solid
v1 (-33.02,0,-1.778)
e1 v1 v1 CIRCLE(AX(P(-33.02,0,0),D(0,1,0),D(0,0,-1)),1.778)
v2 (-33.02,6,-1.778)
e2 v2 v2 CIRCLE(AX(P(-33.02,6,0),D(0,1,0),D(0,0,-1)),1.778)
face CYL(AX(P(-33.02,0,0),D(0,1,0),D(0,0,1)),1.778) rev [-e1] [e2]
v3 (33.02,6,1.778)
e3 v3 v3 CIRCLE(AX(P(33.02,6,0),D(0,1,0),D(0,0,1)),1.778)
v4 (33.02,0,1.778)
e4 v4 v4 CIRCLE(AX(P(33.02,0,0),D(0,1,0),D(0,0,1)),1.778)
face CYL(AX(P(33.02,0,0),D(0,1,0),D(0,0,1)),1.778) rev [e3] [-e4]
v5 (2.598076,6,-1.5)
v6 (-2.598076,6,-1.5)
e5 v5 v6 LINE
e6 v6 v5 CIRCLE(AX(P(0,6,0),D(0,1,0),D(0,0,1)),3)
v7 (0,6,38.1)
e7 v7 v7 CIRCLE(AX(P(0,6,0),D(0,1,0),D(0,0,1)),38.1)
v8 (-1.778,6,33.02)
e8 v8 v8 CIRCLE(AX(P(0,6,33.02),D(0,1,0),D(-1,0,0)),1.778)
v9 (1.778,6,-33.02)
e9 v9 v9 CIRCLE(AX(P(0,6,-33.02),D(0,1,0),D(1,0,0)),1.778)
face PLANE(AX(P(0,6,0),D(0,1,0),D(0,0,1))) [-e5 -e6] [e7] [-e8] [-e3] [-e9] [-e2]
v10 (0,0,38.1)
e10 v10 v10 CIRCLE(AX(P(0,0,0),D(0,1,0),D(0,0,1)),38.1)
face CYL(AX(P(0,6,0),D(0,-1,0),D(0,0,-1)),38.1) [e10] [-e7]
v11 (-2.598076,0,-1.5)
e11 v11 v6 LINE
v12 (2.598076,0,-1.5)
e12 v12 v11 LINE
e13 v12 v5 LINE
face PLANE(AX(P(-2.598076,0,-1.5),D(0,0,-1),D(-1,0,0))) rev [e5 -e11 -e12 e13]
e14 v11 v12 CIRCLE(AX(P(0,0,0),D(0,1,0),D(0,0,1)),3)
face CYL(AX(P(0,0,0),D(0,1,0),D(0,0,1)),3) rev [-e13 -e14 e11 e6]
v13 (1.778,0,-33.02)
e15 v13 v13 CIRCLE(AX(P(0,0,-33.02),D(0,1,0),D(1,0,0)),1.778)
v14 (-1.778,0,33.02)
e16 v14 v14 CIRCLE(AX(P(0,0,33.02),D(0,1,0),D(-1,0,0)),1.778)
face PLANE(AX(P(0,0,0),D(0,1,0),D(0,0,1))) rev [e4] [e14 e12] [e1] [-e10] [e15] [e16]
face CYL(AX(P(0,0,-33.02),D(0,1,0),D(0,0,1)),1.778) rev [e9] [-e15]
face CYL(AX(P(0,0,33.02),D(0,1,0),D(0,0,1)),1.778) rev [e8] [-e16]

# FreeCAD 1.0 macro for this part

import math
import FreeCAD as App
import Part
import Sketcher
from FreeCAD import Vector
Q = App.Units.Quantity

doc = App.newDocument("Part")
body = doc.addObject("PartDesign::Body", "Body")

# Sketch on XZ plane
sketch1 = doc.addObject("Sketcher::SketchObject", "Sketch")
body.addObject(sketch1)
sketch1.AttachmentSupport = (doc.XZ_Plane, [""])
sketch1.MapMode = "FlatFace"
sketch1.addGeometry(Part.Circle(Vector(0, 0, 0), Vector(0, 0, 1), 38), False)
sketch1.addConstraint(Sketcher.Constraint("Coincident", 0, 3, -1, 1))
sketch1.addConstraint(Sketcher.Constraint("Diameter", 0, Q("3 in")))
pad1 = doc.addObject("PartDesign::Pad", "Pad")
body.addObject(pad1)
pad1.Profile = sketch1
pad1.Length = 6
pad1.Reversed = True

# Sketch on XZ plane
sketch2 = doc.addObject("Sketcher::SketchObject", "Sketch001")
body.addObject(sketch2)
sketch2.AttachmentSupport = (doc.XZ_Plane, [""])
sketch2.MapMode = "FlatFace"
sketch2.AttachmentOffset = App.Placement(Vector(0, 0, -6), App.Rotation())
sketch2.addGeometry(Part.Circle(Vector(33, 0, 0), Vector(0, 0, 1), 1.8), False)
sketch2.addConstraint(Sketcher.Constraint("PointOnObject", 0, 3, -1))
sketch2.addConstraint(Sketcher.Constraint("Diameter", 0, Q("0.14 in")))
sketch2.addConstraint(Sketcher.Constraint("DistanceX", -1, 1, 0, 3, Q("1.3 in")))
pocket1 = doc.addObject("PartDesign::Pocket", "Pocket")
body.addObject(pocket1)
pocket1.Profile = sketch2
pocket1.Type = "ThroughAll"
pocket1.Reversed = True
doc.recompute()

polarpattern = doc.addObject("PartDesign::PolarPattern", "PolarPattern")
body.addObject(polarpattern)
polarpattern.Originals = [pocket1]
polarpattern.Axis = (doc.Y_Axis, [""])
polarpattern.Angle = 360
polarpattern.Occurrences = 4
body.Tip = polarpattern

# Sketch on XZ plane
sketch3 = doc.addObject("Sketcher::SketchObject", "Sketch002")
body.addObject(sketch3)
sketch3.AttachmentSupport = (doc.XZ_Plane, [""])
sketch3.MapMode = "FlatFace"
sketch3.AttachmentOffset = App.Placement(Vector(0, 0, -6), App.Rotation())
sketch3.addGeometry(Part.LineSegment(Vector(2.6, -1.5, 0), Vector(-2.6, -1.5, 0)), False)
sketch3.addGeometry(Part.ArcOfCircle(Part.Circle(Vector(0, 0, 0), Vector(0, 0, 1), 3), math.radians(-30), math.radians(210)), False)
sketch3.addConstraint(Sketcher.Constraint("Coincident", 0, 1, 1, 1))
sketch3.addConstraint(Sketcher.Constraint("Coincident", 1, 2, 0, 2))
sketch3.addConstraint(Sketcher.Constraint("Horizontal", 0))
sketch3.addConstraint(Sketcher.Constraint("Coincident", 1, 3, -1, 1))
sketch3.addConstraint(Sketcher.Constraint("Radius", 1, Q("3 mm")))
sketch3.addConstraint(Sketcher.Constraint("DistanceY", 0, 1, -1, 1, Q("1.5 mm")))
pocket2 = doc.addObject("PartDesign::Pocket", "Pocket001")
body.addObject(pocket2)
pocket2.Profile = sketch3
pocket2.Type = "ThroughAll"
pocket2.Reversed = True

doc.recompute()
